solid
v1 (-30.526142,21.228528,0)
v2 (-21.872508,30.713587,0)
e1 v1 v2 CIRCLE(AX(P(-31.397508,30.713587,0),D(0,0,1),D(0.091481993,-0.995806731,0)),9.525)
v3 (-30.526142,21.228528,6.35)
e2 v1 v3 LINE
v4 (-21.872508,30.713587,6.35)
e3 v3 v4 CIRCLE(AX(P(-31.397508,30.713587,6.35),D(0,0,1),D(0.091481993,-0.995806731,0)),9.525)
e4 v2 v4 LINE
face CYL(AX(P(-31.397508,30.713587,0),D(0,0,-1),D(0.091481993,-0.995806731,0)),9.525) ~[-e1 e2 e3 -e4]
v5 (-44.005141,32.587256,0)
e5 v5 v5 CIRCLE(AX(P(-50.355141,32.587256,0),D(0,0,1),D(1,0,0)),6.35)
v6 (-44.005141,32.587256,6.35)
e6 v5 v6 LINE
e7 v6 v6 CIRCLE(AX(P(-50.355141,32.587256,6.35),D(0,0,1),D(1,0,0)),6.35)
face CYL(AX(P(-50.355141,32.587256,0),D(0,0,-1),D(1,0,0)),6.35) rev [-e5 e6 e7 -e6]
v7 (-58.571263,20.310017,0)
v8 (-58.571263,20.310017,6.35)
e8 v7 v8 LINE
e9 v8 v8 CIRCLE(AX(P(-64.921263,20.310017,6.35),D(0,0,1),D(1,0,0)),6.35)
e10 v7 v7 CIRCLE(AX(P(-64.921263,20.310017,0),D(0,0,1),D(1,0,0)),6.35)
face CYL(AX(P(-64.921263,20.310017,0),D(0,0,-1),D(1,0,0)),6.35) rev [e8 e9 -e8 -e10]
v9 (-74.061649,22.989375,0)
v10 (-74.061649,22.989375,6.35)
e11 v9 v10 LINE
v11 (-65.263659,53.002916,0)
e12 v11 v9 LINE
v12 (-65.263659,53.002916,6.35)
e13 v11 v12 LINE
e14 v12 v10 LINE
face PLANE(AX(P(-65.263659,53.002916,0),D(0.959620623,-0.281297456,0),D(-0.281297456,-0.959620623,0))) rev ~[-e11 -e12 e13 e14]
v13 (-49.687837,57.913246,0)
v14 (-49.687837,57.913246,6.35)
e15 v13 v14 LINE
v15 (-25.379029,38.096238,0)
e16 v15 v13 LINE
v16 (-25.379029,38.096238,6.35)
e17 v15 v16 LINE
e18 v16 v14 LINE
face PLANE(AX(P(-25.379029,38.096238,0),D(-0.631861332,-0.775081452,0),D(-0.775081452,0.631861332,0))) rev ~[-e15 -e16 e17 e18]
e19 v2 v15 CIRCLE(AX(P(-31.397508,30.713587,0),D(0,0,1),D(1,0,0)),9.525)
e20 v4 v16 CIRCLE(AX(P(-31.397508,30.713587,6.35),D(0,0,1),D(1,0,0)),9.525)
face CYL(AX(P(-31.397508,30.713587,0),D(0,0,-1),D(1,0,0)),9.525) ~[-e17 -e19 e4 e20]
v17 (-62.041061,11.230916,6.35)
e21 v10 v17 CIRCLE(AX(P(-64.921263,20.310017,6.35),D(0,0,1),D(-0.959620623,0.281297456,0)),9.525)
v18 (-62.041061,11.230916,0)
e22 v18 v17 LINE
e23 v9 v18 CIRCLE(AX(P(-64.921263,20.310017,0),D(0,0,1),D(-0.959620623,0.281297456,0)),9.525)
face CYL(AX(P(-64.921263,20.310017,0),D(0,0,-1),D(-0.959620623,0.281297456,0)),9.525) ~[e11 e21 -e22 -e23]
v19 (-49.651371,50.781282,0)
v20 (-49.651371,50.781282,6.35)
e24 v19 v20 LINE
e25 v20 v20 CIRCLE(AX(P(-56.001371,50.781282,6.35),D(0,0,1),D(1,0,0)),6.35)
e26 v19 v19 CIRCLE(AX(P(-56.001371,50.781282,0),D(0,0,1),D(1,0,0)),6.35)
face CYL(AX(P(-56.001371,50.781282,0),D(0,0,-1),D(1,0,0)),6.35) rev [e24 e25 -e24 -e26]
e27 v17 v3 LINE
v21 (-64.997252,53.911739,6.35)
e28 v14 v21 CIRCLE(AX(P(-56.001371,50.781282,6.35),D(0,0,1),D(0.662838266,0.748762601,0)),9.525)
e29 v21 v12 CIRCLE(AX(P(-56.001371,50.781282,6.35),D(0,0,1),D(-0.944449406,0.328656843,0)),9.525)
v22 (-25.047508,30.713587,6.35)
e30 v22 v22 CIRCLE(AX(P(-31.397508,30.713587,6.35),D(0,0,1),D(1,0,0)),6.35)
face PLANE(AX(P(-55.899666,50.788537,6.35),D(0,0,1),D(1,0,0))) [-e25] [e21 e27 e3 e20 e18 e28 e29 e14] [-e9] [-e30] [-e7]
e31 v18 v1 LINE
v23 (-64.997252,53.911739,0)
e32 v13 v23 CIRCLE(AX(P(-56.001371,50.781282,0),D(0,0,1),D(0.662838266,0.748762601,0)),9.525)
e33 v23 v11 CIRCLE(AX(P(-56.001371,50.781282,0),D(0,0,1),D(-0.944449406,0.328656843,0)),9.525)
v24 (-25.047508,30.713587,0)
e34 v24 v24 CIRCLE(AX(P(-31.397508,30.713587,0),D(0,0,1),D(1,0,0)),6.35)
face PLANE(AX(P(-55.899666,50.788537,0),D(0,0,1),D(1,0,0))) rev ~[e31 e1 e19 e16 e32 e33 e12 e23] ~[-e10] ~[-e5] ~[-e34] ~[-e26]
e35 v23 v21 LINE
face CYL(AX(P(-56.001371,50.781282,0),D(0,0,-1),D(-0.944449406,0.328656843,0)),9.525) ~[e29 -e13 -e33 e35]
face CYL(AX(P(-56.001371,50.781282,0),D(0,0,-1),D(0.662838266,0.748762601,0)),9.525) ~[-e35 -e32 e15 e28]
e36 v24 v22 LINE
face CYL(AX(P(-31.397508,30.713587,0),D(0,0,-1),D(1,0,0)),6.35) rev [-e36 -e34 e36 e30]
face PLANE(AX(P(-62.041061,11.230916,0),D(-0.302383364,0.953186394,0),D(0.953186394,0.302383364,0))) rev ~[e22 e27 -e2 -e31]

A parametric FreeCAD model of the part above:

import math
import FreeCAD as App
import Part
import Sketcher
Q = App.Units.Quantity

doc = App.newDocument("Part")
body = doc.addObject("PartDesign::Body", "Body")

sketch1 = body.newObject("Sketcher::SketchObject", "Sketch")
sketch1.AttachmentSupport = (doc.getObject("XY_Plane"), [""])
sketch1.MapMode = "FlatFace"
sketch1.addGeometry(Part.ArcOfCircle(Part.Circle(App.Vector(-56.001371, 50.781282, 0), App.Vector(0, 0, 1), 9.525), math.radians(48.483304), math.radians(160.812728)), False)
sketch1.addGeometry(Part.ArcOfCircle(Part.Circle(App.Vector(-56.001371, 50.781282, 0), App.Vector(0, 0, 1), 9.525), math.radians(160.812728), math.radians(166.511959)), False)
sketch1.addGeometry(Part.LineSegment(App.Vector(-65.263659, 53.002916, 0), App.Vector(-74.061649, 22.989375, 0)), False)
sketch1.addGeometry(Part.ArcOfCircle(Part.Circle(App.Vector(-64.921263, 20.310017, 0), App.Vector(0, 0, 1), 9.525), math.radians(163.662344), math.radians(287.60081)), False)
sketch1.addGeometry(Part.LineSegment(App.Vector(-62.041061, 11.230916, 0), App.Vector(-30.526142, 21.228528, 0)), False)
sketch1.addGeometry(Part.ArcOfCircle(Part.Circle(App.Vector(-31.397508, 30.713587, 0), App.Vector(0, 0, 1), 9.525), math.radians(-84.751129), math.radians(0)), False)
sketch1.addGeometry(Part.ArcOfCircle(Part.Circle(App.Vector(-31.397508, 30.713587, 0), App.Vector(0, 0, 1), 9.525), math.radians(0), math.radians(50.812418)), False)
sketch1.addGeometry(Part.LineSegment(App.Vector(-25.379029, 38.096238, 0), App.Vector(-49.687837, 57.913246, 0)), False)
sketch1.addGeometry(Part.Circle(App.Vector(-64.921263, 20.310017, 0), App.Vector(0, 0, 1), 6.35), False)
sketch1.addGeometry(Part.Circle(App.Vector(-50.355141, 32.587256, 0), App.Vector(0, 0, 1), 6.35), False)
sketch1.addGeometry(Part.Circle(App.Vector(-31.397508, 30.713587, 0), App.Vector(0, 0, 1), 6.35), False)
sketch1.addGeometry(Part.Circle(App.Vector(-56.001371, 50.781282, 0), App.Vector(0, 0, 1), 6.35), False)
sketch1.addConstraint(Sketcher.Constraint("Coincident", 0, 2, 1, 1))
sketch1.addConstraint(Sketcher.Constraint("Coincident", 1, 2, 2, 1))
sketch1.addConstraint(Sketcher.Constraint("Coincident", 2, 2, 3, 1))
sketch1.addConstraint(Sketcher.Constraint("Coincident", 3, 2, 4, 1))
sketch1.addConstraint(Sketcher.Constraint("Coincident", 4, 2, 5, 1))
sketch1.addConstraint(Sketcher.Constraint("Coincident", 5, 2, 6, 1))
sketch1.addConstraint(Sketcher.Constraint("Coincident", 6, 2, 7, 1))
sketch1.addConstraint(Sketcher.Constraint("Coincident", 7, 2, 0, 1))
sketch1.addConstraint(Sketcher.Constraint("Coincident", 1, 3, 0, 3))
sketch1.addConstraint(Sketcher.Constraint("Coincident", 6, 3, 5, 3))
sketch1.addConstraint(Sketcher.Constraint("Coincident", 8, 3, 3, 3))
sketch1.addConstraint(Sketcher.Constraint("Coincident", 10, 3, 5, 3))
sketch1.addConstraint(Sketcher.Constraint("Coincident", 11, 3, 0, 3))
sketch1.addConstraint(Sketcher.Constraint("Diameter", 8, Q("0.5 in")))
sketch1.addConstraint(Sketcher.Constraint("Diameter", 9, Q("0.5 in")))
sketch1.addConstraint(Sketcher.Constraint("Diameter", 10, Q("0.5 in")))
sketch1.addConstraint(Sketcher.Constraint("Diameter", 11, Q("0.5 in")))
sketch1.addConstraint(Sketcher.Constraint("Radius", 0, Q("0.375 in")))
sketch1.addConstraint(Sketcher.Constraint("Radius", 3, Q("0.375 in")))
sketch1.addConstraint(Sketcher.Constraint("Radius", 5, Q("0.375 in")))
sketch1.addConstraint(Sketcher.Constraint("DistanceX", 3, 3, 3, 2, Q("2.880202 mm")))
sketch1.addConstraint(Sketcher.Constraint("DistanceX", 9, 3, 4, 2, Q("19.828999 mm")))
sketch1.addConstraint(Sketcher.Constraint("DistanceX", 0, 3, -1, 1, Q("56.001371 mm")))
sketch1.addConstraint(Sketcher.Constraint("DistanceX", 5, 3, -1, 1, Q("31.397508 mm")))
sketch1.addConstraint(Sketcher.Constraint("DistanceX", 9, 3, -1, 1, Q("50.355141 mm")))
sketch1.addConstraint(Sketcher.Constraint("DistanceX", 0, 2, -1, 1, Q("64.997252 mm")))
sketch1.addConstraint(Sketcher.Constraint("DistanceY", -1, 1, 0, 2, Q("53.911739 mm")))
sketch1.addConstraint(Sketcher.Constraint("DistanceX", 1, 2, -1, 1, Q("65.263659 mm")))
sketch1.addConstraint(Sketcher.Constraint("DistanceX", 2, 2, -1, 1, Q("74.061649 mm")))
sketch1.addConstraint(Sketcher.Constraint("DistanceX", 3, 2, -1, 1, Q("62.041061 mm")))
sketch1.addConstraint(Sketcher.Constraint("DistanceX", 6, 2, -1, 1, Q("25.379029 mm")))
sketch1.addConstraint(Sketcher.Constraint("DistanceY", 3, 3, 5, 3, Q("10.40357 mm")))
sketch1.addConstraint(Sketcher.Constraint("DistanceY", 6, 3, 9, 3, Q("1.87367 mm")))
sketch1.addConstraint(Sketcher.Constraint("DistanceY", 9, 3, 1, 2, Q("20.41566 mm")))
sketch1.addConstraint(Sketcher.Constraint("DistanceY", 4, 2, 5, 2, Q("9.485059 mm")))
sketch1.addConstraint(Sketcher.Constraint("DistanceX", 1, 2, 7, 2, Q("15.575822 mm")))
pad1 = body.newObject("PartDesign::Pad", "Pad")
pad1.Profile = sketch1
pad1.Length = Q("0.25 in")

doc.recompute()
